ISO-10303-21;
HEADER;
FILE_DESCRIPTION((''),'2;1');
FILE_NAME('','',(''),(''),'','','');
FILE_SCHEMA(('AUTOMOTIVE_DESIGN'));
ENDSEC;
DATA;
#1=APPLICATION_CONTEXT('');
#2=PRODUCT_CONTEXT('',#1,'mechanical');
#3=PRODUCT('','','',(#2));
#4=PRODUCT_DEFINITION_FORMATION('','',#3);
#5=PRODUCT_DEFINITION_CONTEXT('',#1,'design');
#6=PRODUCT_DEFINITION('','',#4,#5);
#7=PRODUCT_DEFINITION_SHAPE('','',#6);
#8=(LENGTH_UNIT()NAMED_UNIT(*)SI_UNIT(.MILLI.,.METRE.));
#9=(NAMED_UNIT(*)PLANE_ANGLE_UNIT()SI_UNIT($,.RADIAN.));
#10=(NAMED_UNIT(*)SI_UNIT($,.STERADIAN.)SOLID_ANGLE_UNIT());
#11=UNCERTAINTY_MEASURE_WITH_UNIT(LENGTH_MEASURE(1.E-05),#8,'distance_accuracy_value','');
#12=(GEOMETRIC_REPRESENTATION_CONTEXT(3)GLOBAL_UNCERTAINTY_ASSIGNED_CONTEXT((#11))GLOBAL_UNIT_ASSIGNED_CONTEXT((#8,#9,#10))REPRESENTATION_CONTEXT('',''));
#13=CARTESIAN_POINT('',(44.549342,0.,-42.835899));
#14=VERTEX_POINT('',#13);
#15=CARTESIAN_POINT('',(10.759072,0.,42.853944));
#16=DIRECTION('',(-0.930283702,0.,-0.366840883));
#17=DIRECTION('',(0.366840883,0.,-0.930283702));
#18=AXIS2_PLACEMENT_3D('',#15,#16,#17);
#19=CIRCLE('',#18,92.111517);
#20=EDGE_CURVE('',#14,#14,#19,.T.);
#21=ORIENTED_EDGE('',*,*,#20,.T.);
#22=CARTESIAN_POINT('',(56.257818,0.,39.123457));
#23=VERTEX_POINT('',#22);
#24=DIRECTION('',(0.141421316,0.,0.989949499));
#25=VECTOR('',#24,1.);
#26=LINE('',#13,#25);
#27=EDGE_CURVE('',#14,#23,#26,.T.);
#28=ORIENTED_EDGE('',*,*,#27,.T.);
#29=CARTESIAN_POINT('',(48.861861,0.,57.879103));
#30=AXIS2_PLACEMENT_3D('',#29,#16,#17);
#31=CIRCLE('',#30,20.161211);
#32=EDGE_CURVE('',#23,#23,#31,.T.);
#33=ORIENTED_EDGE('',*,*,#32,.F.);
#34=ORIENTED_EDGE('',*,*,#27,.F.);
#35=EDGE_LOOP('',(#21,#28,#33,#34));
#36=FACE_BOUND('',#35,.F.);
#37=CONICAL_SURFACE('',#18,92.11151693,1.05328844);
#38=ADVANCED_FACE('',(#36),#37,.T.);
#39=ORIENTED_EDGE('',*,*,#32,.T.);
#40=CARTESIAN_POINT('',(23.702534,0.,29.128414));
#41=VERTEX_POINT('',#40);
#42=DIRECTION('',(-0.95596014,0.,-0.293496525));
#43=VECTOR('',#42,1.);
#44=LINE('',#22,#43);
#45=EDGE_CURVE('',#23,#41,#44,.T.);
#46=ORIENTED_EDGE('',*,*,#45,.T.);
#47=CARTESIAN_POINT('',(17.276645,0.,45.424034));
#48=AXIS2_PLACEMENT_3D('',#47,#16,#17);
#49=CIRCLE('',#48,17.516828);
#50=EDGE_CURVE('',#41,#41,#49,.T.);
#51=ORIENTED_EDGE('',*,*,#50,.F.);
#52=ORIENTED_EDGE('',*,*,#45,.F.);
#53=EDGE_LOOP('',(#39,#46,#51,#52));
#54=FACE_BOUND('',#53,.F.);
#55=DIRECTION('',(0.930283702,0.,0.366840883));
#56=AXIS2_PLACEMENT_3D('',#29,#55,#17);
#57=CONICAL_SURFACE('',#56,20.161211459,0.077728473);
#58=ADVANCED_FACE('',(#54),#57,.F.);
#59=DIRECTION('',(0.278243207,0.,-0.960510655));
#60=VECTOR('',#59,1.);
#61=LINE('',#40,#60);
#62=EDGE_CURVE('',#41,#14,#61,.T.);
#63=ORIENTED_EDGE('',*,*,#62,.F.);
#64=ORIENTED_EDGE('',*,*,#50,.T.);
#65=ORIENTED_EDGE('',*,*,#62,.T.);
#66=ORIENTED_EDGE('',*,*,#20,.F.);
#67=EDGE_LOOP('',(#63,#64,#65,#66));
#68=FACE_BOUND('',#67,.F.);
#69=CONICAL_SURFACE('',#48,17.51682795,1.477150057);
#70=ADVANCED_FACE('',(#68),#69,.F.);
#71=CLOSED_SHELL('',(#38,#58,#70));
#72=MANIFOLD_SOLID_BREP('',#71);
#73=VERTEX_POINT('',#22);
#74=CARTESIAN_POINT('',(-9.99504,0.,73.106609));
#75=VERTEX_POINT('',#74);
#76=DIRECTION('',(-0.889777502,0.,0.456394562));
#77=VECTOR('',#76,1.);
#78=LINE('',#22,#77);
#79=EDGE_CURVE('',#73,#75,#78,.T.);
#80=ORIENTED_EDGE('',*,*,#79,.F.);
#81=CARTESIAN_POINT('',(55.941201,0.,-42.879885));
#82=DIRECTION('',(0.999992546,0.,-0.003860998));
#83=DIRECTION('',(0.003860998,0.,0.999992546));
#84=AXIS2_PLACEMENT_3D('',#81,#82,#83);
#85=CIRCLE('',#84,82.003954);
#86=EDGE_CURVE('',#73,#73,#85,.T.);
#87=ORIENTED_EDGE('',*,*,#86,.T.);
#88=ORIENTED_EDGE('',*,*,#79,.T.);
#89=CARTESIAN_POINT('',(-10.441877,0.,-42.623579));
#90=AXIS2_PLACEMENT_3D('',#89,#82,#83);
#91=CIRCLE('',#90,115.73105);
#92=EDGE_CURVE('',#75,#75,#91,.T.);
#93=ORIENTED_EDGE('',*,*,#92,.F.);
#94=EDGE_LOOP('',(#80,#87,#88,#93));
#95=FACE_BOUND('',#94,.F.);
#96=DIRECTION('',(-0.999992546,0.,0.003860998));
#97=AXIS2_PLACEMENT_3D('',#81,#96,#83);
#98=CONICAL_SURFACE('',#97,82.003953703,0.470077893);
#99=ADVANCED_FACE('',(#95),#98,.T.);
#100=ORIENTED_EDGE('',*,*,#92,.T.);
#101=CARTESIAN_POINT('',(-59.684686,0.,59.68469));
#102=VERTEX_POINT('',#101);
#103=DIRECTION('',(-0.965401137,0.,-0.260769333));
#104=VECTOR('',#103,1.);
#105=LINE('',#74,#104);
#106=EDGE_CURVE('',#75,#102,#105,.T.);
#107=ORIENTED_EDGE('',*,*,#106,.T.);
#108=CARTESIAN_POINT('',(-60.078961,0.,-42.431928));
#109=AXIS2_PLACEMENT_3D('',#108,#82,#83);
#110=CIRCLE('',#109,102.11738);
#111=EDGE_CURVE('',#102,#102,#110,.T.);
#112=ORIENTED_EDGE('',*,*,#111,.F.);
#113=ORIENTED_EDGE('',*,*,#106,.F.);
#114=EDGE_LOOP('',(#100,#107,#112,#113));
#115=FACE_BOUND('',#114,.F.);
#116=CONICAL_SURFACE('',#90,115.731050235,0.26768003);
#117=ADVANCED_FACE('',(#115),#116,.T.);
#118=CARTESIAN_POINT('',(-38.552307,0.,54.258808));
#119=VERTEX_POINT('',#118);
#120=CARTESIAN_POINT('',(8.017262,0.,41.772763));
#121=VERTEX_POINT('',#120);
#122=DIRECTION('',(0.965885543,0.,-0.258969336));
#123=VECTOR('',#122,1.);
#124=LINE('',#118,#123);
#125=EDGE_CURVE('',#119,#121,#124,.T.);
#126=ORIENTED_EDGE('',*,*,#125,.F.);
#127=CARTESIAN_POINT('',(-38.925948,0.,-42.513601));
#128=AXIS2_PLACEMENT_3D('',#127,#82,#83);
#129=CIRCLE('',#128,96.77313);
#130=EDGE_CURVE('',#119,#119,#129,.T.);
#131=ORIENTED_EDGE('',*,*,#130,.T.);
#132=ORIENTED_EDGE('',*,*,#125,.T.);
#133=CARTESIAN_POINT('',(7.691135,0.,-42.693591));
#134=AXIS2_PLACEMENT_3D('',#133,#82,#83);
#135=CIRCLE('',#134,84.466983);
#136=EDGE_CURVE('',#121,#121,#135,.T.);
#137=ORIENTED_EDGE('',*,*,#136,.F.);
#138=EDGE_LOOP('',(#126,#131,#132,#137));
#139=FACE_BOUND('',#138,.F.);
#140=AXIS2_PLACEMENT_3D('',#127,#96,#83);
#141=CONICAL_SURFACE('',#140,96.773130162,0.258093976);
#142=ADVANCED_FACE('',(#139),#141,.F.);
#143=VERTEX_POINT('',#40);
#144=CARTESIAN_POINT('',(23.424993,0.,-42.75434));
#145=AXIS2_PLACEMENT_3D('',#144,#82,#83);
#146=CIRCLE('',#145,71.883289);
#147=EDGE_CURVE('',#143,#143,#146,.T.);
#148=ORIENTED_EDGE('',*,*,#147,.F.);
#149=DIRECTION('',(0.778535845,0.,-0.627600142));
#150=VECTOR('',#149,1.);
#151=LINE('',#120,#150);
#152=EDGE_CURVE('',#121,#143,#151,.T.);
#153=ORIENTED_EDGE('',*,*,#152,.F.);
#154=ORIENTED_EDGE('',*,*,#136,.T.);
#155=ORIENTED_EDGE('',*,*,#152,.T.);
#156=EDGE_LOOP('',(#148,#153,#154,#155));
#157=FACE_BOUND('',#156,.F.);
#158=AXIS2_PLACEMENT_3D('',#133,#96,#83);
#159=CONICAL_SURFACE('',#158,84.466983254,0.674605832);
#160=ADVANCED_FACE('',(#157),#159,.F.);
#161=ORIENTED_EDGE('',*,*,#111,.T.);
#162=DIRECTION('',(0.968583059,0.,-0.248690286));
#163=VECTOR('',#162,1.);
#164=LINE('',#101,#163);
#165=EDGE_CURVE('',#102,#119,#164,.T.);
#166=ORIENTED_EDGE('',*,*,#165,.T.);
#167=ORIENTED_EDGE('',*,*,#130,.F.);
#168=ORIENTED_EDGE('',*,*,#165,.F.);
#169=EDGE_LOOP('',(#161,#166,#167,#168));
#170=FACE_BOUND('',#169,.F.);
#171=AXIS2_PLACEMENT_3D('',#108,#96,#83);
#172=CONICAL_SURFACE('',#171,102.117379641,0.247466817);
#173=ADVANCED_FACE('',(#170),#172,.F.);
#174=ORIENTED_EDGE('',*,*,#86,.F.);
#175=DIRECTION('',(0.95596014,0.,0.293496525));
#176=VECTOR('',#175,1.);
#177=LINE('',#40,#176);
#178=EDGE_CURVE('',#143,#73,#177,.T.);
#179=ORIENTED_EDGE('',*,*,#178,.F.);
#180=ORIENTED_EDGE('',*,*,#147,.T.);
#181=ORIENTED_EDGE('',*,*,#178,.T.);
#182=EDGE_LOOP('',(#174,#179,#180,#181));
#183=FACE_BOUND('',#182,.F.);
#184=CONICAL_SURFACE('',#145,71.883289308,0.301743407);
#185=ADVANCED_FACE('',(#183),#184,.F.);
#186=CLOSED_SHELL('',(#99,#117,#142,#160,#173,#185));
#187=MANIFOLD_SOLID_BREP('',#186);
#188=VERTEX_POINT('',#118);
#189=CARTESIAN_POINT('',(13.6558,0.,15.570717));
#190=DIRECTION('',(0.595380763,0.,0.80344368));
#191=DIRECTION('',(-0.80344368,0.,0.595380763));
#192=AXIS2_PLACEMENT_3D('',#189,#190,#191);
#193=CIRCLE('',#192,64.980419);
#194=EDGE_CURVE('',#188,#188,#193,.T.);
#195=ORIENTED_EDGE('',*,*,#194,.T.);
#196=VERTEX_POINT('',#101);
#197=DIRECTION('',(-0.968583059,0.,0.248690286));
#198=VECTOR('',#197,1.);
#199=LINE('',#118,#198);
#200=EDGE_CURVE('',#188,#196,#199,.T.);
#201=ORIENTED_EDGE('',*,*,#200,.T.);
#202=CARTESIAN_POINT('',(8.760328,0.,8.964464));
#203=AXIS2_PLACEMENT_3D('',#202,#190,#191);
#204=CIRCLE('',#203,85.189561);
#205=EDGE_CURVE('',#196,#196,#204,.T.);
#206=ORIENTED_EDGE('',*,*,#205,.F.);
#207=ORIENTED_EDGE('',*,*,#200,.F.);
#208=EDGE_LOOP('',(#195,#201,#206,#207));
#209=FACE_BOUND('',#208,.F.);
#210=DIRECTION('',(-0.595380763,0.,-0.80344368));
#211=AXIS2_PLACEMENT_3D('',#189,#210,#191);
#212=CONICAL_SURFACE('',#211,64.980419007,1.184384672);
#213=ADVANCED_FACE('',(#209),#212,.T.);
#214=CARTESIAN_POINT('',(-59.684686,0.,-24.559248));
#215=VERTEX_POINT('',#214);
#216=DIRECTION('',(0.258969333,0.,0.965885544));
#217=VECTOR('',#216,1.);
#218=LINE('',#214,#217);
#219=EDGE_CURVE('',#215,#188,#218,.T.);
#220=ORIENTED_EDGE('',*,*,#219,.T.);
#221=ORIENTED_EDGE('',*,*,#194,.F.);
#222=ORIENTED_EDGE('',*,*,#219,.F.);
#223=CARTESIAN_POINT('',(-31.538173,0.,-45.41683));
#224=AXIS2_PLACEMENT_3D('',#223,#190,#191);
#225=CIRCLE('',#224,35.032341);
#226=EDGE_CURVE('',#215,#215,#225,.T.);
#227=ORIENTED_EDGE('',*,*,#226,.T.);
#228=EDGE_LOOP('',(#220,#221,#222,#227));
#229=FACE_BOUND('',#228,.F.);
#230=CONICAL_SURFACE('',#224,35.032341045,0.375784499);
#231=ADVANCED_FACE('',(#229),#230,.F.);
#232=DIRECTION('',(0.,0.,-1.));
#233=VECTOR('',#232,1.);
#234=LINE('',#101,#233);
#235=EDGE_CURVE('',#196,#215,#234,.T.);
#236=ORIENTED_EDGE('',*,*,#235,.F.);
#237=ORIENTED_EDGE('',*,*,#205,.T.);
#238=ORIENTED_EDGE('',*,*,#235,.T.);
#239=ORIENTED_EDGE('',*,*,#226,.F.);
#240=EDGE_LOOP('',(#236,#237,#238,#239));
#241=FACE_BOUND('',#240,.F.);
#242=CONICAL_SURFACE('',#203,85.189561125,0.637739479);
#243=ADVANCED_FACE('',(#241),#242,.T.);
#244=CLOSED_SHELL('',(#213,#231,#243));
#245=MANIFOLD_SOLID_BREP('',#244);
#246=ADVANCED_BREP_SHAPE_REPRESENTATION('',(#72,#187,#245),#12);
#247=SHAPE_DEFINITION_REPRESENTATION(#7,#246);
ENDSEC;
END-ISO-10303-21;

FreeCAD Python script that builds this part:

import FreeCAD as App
import Part
import Sketcher
Q = App.Units.Quantity


def add_polygon(sketch, points):
    """Adds a closed chain of lines whose ends are joined by coincident constraints."""
    first, n = sketch.GeometryCount, len(points)
    for a, b in zip(points, points[1:] + points[:1]):
        sketch.addGeometry(Part.LineSegment(App.Vector(*a, 0), App.Vector(*b, 0)), False)
    for i in range(n):
        sketch.addConstraint(Sketcher.Constraint("Coincident", first + i, 2, first + (i + 1) % n, 1))

doc = App.newDocument("Part")
body = doc.addObject("PartDesign::Body", "Body")

sketch1 = doc.addObject("Sketcher::SketchObject", "Sketch")
body.addObject(sketch1)
sketch1.AttachmentSupport = (doc.XZ_Plane, [""])
sketch1.MapMode = "FlatFace"
add_polygon(sketch1, [(-39, 54), (8, 42), (24, 29), (56, 39), (-10, 73), (-60, 60)])
sketch1.addGeometry(Part.LineSegment(App.Vector(-60, -42, 0), App.Vector(56, -43, 0)), True)
sketch1.addConstraint(Sketcher.Constraint("DistanceX", -1, 1, 6, 2, Q("55.941201 mm")))
sketch1.addConstraint(Sketcher.Constraint("DistanceX", 3, 2, 0, 2, Q("18.012302 mm")))
sketch1.addConstraint(Sketcher.Constraint("DistanceY", 5, 2, 3, 2, Q("18.847801 mm")))
sketch1.addConstraint(Sketcher.Constraint("DistanceY", 6, 2, 1, 2, Q("72.008299 mm")))
sketch1.addConstraint(Sketcher.Constraint("Distance", 1, Q("20.147142 mm")))
sketch1.addConstraint(Sketcher.Constraint("Distance", 3, Q("74.460028 mm")))
sketch1.addConstraint(Sketcher.Constraint("Distance", 5, Q("21.817828 mm")))
sketch1.addConstraint(Sketcher.Constraint("DistanceX", 3, 2, -1, 1, Q("9.99504 mm")))
sketch1.addConstraint(Sketcher.Constraint("DistanceY", -1, 1, 3, 2, Q("73.106609 mm")))
sketch1.addConstraint(Sketcher.Constraint("DistanceY", -1, 1, 4, 2, Q("59.68469 mm")))
sketch1.addConstraint(Sketcher.Constraint("DistanceX", 6, 1, -1, 1, Q("60.078961 mm")))
sketch1.addConstraint(Sketcher.Constraint("DistanceY", 6, 1, -1, 1, Q("42.431929 mm")))
sketch1.addConstraint(Sketcher.Constraint("DistanceY", 1, 2, 0, 2, Q("12.644349 mm")))
sketch1.addConstraint(Sketcher.Constraint("DistanceX", 3, 2, 2, 2, Q("66.252858 mm")))
sketch1.addConstraint(Sketcher.Constraint("DistanceX", 4, 2, 0, 2, Q("67.701948 mm")))
sketch1.addConstraint(Sketcher.Constraint("DistanceY", 6, 1, 0, 2, Q("84.204692 mm")))
revolution = doc.addObject("PartDesign::Revolution", "Revolution")
body.addObject(revolution)
revolution.Profile = sketch1
revolution.ReferenceAxis = (sketch1, ["Axis0"])
revolution.Angle = 360
body2 = doc.addObject("PartDesign::Body", "Body001")

sketch2 = doc.addObject("Sketcher::SketchObject", "Sketch001")
body2.addObject(sketch2)
sketch2.AttachmentSupport = (doc.getObject("XZ_Plane001"), [""])
sketch2.MapMode = "FlatFace"
add_polygon(sketch2, [(56, 39), (24, 29), (45, -43)])
sketch2.addGeometry(Part.LineSegment(App.Vector(49, 58, 0), App.Vector(11, 43, 0)), True)
sketch2.addConstraint(Sketcher.Constraint("DistanceY", 1, 2, -1, 1, Q("42.835899 mm")))
sketch2.addConstraint(Sketcher.Constraint("Distance", 2, Q("82.791452 mm")))
sketch2.addConstraint(Sketcher.Constraint("DistanceX", -1, 1, 3, 1, Q("48.861861 mm")))
sketch2.addConstraint(Sketcher.Constraint("DistanceX", -1, 1, 3, 2, Q("10.759072 mm")))
sketch2.addConstraint(Sketcher.Constraint("DistanceX", 0, 2, 1, 2, Q("20.846808 mm")))
sketch2.addConstraint(Sketcher.Constraint("DistanceY", 0, 2, 3, 1, Q("28.750689 mm")))
sketch2.addConstraint(Sketcher.Constraint("DistanceX", 1, 2, 3, 1, Q("4.312519 mm")))
sketch2.addConstraint(Sketcher.Constraint("DistanceY", 0, 2, 3, 2, Q("13.72553 mm")))
sketch2.addConstraint(Sketcher.Constraint("Distance", 0, Q("34.055064 mm")))
sketch2.addConstraint(Sketcher.Constraint("Distance", 1, Q("74.922972 mm")))
revolution2 = doc.addObject("PartDesign::Revolution", "Revolution001")
body2.addObject(revolution2)
revolution2.Profile = sketch2
revolution2.ReferenceAxis = (sketch2, ["Axis0"])
revolution2.Angle = 360
body3 = doc.addObject("PartDesign::Body", "Body002")

sketch3 = doc.addObject("Sketcher::SketchObject", "Sketch002")
body3.addObject(sketch3)
sketch3.AttachmentSupport = (doc.getObject("XZ_Plane002"), [""])
sketch3.MapMode = "FlatFace"
add_polygon(sketch3, [(-60, 60), (-60, -25), (-39, 54)])
sketch3.addGeometry(Part.LineSegment(App.Vector(-32, -45, 0), App.Vector(14, 16, 0)), True)
sketch3.addConstraint(Sketcher.Constraint("Vertical", 0))
sketch3.addConstraint(Sketcher.Constraint("DistanceY", 0, 2, 0, 1, Q("84.243938 mm")))
sketch3.addConstraint(Sketcher.Constraint("DistanceX", -1, 1, 3, 2, Q("13.6558 mm")))
sketch3.addConstraint(Sketcher.Constraint("Distance", 1, Q("81.601859 mm")))
sketch3.addConstraint(Sketcher.Constraint("Distance", 2, Q("21.817828 mm")))
sketch3.addConstraint(Sketcher.Constraint("Distance", 3, Q("75.907681 mm")))
sketch3.addConstraint(Sketcher.Constraint("DistanceY", 0, 2, -1, 1, Q("24.559248 mm")))
sketch3.addConstraint(Sketcher.Constraint("DistanceY", 3, 1, -1, 1, Q("45.41683 mm")))
sketch3.addConstraint(Sketcher.Constraint("DistanceY", 3, 2, 1, 2, Q("38.688091 mm")))
sketch3.addConstraint(Sketcher.Constraint("DistanceX", 0, 2, -1, 1, Q("59.684686 mm")))
revolution3 = doc.addObject("PartDesign::Revolution", "Revolution002")
body3.addObject(revolution3)
revolution3.Profile = sketch3
revolution3.ReferenceAxis = (sketch3, ["Axis0"])
revolution3.Angle = 360

doc.recompute()
